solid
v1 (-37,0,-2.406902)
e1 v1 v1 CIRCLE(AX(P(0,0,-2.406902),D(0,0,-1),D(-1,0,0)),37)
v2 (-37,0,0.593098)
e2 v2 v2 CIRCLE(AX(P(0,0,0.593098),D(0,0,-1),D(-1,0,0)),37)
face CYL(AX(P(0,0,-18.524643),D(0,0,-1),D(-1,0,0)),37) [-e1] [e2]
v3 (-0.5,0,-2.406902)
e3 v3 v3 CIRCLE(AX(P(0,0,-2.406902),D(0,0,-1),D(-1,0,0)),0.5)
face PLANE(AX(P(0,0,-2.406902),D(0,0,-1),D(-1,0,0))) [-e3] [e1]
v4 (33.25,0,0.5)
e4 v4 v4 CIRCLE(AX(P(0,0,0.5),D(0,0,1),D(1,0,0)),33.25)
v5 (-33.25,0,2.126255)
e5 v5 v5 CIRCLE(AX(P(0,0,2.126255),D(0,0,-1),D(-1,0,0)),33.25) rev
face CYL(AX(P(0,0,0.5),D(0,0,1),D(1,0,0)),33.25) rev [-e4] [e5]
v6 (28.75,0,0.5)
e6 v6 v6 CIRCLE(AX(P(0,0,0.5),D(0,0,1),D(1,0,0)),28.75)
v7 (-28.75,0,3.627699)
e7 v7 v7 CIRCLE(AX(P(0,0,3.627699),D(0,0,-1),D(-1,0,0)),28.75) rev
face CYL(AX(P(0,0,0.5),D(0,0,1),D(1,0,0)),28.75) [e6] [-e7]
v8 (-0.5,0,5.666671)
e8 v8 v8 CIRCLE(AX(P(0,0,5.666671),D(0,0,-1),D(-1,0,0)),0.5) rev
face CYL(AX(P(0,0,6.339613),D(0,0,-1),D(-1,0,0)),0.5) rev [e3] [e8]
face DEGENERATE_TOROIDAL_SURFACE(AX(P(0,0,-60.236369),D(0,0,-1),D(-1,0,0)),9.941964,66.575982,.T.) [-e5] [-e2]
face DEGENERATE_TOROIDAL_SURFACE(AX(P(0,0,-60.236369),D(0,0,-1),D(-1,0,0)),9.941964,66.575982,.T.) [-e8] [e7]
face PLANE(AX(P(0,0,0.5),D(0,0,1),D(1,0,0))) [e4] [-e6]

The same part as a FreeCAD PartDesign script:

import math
import FreeCAD as App
import Part
import Sketcher
from FreeCAD import Vector
Q = App.Units.Quantity

doc = App.newDocument("Part")
params = doc.addObject("Spreadsheet::Sheet", "Params")
for row, (alias, value) in enumerate([
    ("sketch1_width", "37 mm"),
    ("sketch1_height", "3 mm"),
    ("sketch1_height2", "8 mm"),
    ("revolution_angle", "360 deg"),
    ("sketch2_diameter", "1 mm"),
    ("sketch3_diameter", "66.5 mm"),
    ("sketch3_diameter2", "57.5 mm"),
    ("pocket2_length", "7.5 mm"),
], start=1):
    params.set(f"A{row}", alias)
    params.set(f"B{row}", "=" + value)
    params.setAlias(f"B{row}", alias)

body = doc.addObject("PartDesign::Body", "Body")

sketch1 = body.newObject("Sketcher::SketchObject", "Sketch")
sketch1.AttachmentSupport = (doc.getObject("XZ_Plane"), [""])
sketch1.MapMode = "FlatFace"
sketch1.addGeometry([
    Part.LineSegment(Vector(0, -2.406902, 0), Vector(-37, -2.406902, 0)),
    Part.LineSegment(Vector(-37, -2.406902, 0), Vector(-37, 0.593098, 0)),
    Part.ArcOfCircle(Part.Circle(Vector(-9.941964, -60.236369, 0), Vector(0, 0, 1), 66.575982), math.radians(81.411749), math.radians(113.980355)),
    Part.LineSegment(Vector(0, 5.593098, 0), Vector(0, -2.406902, 0)),
], False)
sketch1.addConstraint([
    Sketcher.Constraint("Coincident", 0, 2, 1, 1),
    Sketcher.Constraint("Coincident", 1, 2, 2, 2),
    Sketcher.Constraint("Coincident", 2, 1, 3, 1),
    Sketcher.Constraint("Coincident", 3, 2, 0, 1),
    Sketcher.Constraint("Horizontal", 0),
    Sketcher.Constraint("Vertical", 1),
    Sketcher.Constraint("Vertical", 3),
    Sketcher.Constraint("PointOnObject", 2, 1, -2),
    Sketcher.Constraint("DistanceX", 0, 2, 0, 1, Q("37 mm")),
    Sketcher.Constraint("DistanceY", 1, 1, 1, 2, Q("3 mm")),
    Sketcher.Constraint("DistanceY", 3, 2, 3, 1, Q("8 mm")),
    Sketcher.Constraint("Radius", 2, Q("66.575982 mm")),
    Sketcher.Constraint("DistanceY", 0, 2, -1, 1, Q("2.406902 mm")),
])
sketch1.setExpression("Constraints[8]", "Params.sketch1_width")
sketch1.setExpression("Constraints[9]", "Params.sketch1_height")
sketch1.setExpression("Constraints[10]", "Params.sketch1_height2")
revolution = body.newObject("PartDesign::Revolution", "Revolution")
revolution.Profile = sketch1
revolution.ReferenceAxis = (sketch1, ["V_Axis"])
revolution.setExpression("Angle", "Params.revolution_angle")

sketch2 = body.newObject("Sketcher::SketchObject", "Sketch001")
sketch2.AttachmentSupport = (doc.getObject("XY_Plane"), [""])
sketch2.MapMode = "FlatFace"
sketch2.AttachmentOffset = App.Placement(Vector(0, 0, -2.406902), App.Rotation())
sketch2.addGeometry(Part.Circle(Vector(0, 0, 0), Vector(0, 0, 1), 0.5), False)
sketch2.addConstraint([
    Sketcher.Constraint("Coincident", 0, 3, -1, 1),
    Sketcher.Constraint("Diameter", 0, Q("1 mm")),
])
sketch2.setExpression("Constraints[1]", "Params.sketch2_diameter")
pocket1 = body.newObject("PartDesign::Pocket", "Pocket")
pocket1.Profile = sketch2
pocket1.Type = "ThroughAll"
pocket1.Reversed = True

sketch3 = body.newObject("Sketcher::SketchObject", "Sketch002")
sketch3.AttachmentSupport = (doc.getObject("XY_Plane"), [""])
sketch3.MapMode = "FlatFace"
sketch3.AttachmentOffset = App.Placement(Vector(0, 0, 8), App.Rotation())
sketch3.addGeometry([
    Part.Circle(Vector(0, 0, 0), Vector(0, 0, 1), 33.25),
    Part.Circle(Vector(0, 0, 0), Vector(0, 0, 1), 28.75),
], False)
sketch3.addConstraint([
    Sketcher.Constraint("Coincident", 0, 3, -1, 1),
    Sketcher.Constraint("Coincident", 1, 3, -1, 1),
    Sketcher.Constraint("Diameter", 0, Q("66.5 mm")),
    Sketcher.Constraint("Diameter", 1, Q("57.5 mm")),
])
sketch3.setExpression("Constraints[2]", "Params.sketch3_diameter")
sketch3.setExpression("Constraints[3]", "Params.sketch3_diameter2")
pocket2 = body.newObject("PartDesign::Pocket", "Pocket001")
pocket2.Profile = sketch3
pocket2.setExpression("Length", "Params.pocket2_length")

doc.recompute()
